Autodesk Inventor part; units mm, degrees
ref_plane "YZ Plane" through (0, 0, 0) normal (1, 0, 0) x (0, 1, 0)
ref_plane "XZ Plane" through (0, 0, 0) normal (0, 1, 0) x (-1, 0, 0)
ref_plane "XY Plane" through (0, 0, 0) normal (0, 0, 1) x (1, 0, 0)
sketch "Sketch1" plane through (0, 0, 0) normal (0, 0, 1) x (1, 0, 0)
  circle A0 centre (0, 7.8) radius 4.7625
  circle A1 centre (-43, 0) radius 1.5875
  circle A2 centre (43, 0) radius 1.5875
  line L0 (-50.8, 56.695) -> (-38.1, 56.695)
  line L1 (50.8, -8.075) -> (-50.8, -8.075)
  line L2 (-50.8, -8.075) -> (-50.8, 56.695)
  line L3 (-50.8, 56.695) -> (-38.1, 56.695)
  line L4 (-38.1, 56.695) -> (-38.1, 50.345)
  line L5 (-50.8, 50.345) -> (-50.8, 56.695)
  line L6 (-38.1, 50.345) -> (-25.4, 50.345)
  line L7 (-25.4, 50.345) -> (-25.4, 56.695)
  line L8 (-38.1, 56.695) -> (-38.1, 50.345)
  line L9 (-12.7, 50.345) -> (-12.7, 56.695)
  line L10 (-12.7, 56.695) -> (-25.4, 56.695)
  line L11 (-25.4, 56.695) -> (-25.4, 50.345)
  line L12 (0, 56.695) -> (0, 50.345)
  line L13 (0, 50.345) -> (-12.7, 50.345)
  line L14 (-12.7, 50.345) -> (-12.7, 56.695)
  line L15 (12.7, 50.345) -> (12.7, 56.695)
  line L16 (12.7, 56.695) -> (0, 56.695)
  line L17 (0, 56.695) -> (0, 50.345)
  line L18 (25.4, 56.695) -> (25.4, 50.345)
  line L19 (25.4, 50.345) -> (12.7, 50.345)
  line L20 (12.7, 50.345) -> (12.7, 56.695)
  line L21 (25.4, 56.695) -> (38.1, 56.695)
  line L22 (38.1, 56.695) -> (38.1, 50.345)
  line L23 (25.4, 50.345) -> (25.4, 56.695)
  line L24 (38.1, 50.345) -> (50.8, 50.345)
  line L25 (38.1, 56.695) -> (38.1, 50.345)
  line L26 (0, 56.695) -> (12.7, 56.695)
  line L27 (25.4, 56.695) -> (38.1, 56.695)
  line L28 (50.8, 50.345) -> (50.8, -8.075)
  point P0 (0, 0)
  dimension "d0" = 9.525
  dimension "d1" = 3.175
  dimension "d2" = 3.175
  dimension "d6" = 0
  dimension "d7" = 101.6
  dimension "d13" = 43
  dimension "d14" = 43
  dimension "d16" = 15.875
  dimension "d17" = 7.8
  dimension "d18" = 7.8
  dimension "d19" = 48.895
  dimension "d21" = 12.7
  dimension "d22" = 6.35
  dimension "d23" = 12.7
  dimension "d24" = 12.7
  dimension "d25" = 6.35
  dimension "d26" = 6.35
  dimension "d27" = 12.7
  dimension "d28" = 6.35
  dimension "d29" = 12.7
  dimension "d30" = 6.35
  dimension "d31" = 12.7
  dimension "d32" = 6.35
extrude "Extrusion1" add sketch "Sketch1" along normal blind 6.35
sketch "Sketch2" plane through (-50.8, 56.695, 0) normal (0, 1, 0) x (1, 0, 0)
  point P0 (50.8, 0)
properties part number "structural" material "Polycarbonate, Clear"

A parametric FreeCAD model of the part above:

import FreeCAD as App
import Part
import Sketcher
from FreeCAD import Vector
Q = App.Units.Quantity


def add_polygon(sketch, points):
    """Adds a closed chain of lines whose ends are joined by coincident constraints."""
    first, n = sketch.GeometryCount, len(points)
    for a, b in zip(points, points[1:] + points[:1]):
        sketch.addGeometry(Part.LineSegment(App.Vector(*a, 0), App.Vector(*b, 0)), False)
    for i in range(n):
        sketch.addConstraint(Sketcher.Constraint("Coincident", first + i, 2, first + (i + 1) % n, 1))

doc = App.newDocument("Part")
body = doc.addObject("PartDesign::Body", "Body")

sketch1 = doc.addObject("Sketcher::SketchObject", "Sketch")
body.addObject(sketch1)
sketch1.AttachmentSupport = (doc.XY_Plane, [""])
sketch1.MapMode = "FlatFace"
add_polygon(sketch1, [(-38.1, 56.7), (-50.8, 56.7), (-50.8, -8.1), (50.8, -8.1), (50.8, 50.3), (38.1, 50.3), (38.1, 56.7), (25.4, 56.7), (25.4, 50.3), (12.7, 50.3), (12.7, 56.7), (0, 56.7), (0, 50.3), (-12.7, 50.3), (-12.7, 56.7), (-25.4, 56.7), (-25.4, 50.3), (-38.1, 50.3)])
sketch1.addGeometry(Part.Circle(Vector(-43, 0, 0), Vector(0, 0, 1), 1.6), False)
sketch1.addGeometry(Part.Circle(Vector(0, 7.8, 0), Vector(0, 0, 1), 4.8), False)
sketch1.addGeometry(Part.Circle(Vector(43, 0, 0), Vector(0, 0, 1), 1.6), False)
sketch1.addConstraint(Sketcher.Constraint("Horizontal", 0))
sketch1.addConstraint(Sketcher.Constraint("Vertical", 1))
sketch1.addConstraint(Sketcher.Constraint("Horizontal", 2))
sketch1.addConstraint(Sketcher.Constraint("Vertical", 3))
sketch1.addConstraint(Sketcher.Constraint("Horizontal", 4))
sketch1.addConstraint(Sketcher.Constraint("Vertical", 5))
sketch1.addConstraint(Sketcher.Constraint("Horizontal", 6))
sketch1.addConstraint(Sketcher.Constraint("Vertical", 7))
sketch1.addConstraint(Sketcher.Constraint("Horizontal", 8))
sketch1.addConstraint(Sketcher.Constraint("Vertical", 9))
sketch1.addConstraint(Sketcher.Constraint("Horizontal", 10))
sketch1.addConstraint(Sketcher.Constraint("Vertical", 11))
sketch1.addConstraint(Sketcher.Constraint("Horizontal", 12))
sketch1.addConstraint(Sketcher.Constraint("Vertical", 13))
sketch1.addConstraint(Sketcher.Constraint("Horizontal", 14))
sketch1.addConstraint(Sketcher.Constraint("Vertical", 15))
sketch1.addConstraint(Sketcher.Constraint("Horizontal", 16))
sketch1.addConstraint(Sketcher.Constraint("Vertical", 17))
sketch1.addConstraint(Sketcher.Constraint("Equal", 18, 20))
sketch1.addConstraint(Sketcher.Constraint("Symmetric", 18, 3, 20, 3, -1, 1))
sketch1.addConstraint(Sketcher.Constraint("Symmetric", 8, 2, 12, 2, -2))
sketch1.addConstraint(Sketcher.Constraint("Symmetric", 6, 2, 14, 2, -2))
sketch1.addConstraint(Sketcher.Constraint("Symmetric", 4, 2, 16, 2, -2))
sketch1.addConstraint(Sketcher.Constraint("PointOnObject", 18, 3, -1))
sketch1.addConstraint(Sketcher.Constraint("PointOnObject", 19, 3, -2))
sketch1.addConstraint(Sketcher.Constraint("PointOnObject", 10, 2, -2))
sketch1.addConstraint(Sketcher.Constraint("Horizontal", 0, 2, 5, 2))
sketch1.addConstraint(Sketcher.Constraint("Horizontal", 4, 2, 7, 2))
sketch1.addConstraint(Sketcher.Constraint("Horizontal", 6, 2, 9, 2))
sketch1.addConstraint(Sketcher.Constraint("Equal", 0, 4))
sketch1.addConstraint(Sketcher.Constraint("Equal", 4, 6))
sketch1.addConstraint(Sketcher.Constraint("Equal", 6, 8))
sketch1.addConstraint(Sketcher.Constraint("Equal", 8, 10))
sketch1.addConstraint(Sketcher.Constraint("DistanceX", 2, 1, 2, 2, Q("4 in")))
sketch1.addConstraint(Sketcher.Constraint("Diameter", 18, Q("0.125 in")))
sketch1.addConstraint(Sketcher.Constraint("Diameter", 19, Q("0.375 in")))
sketch1.addConstraint(Sketcher.Constraint("DistanceY", 5, 1, 5, 2, Q("0.25 in")))
sketch1.addConstraint(Sketcher.Constraint("DistanceY", 3, 1, 3, 2, Q("2.3 in")))
sketch1.addConstraint(Sketcher.Constraint("DistanceY", 19, 3, 0, 2, Q("1.925 in")))
sketch1.addConstraint(Sketcher.Constraint("DistanceX", 18, 3, -1, 1, Q("43 mm")))
sketch1.addConstraint(Sketcher.Constraint("DistanceY", -1, 1, 19, 3, Q("7.8 mm")))
pad1 = doc.addObject("PartDesign::Pad", "Pad")
body.addObject(pad1)
pad1.Profile = sketch1
pad1.Length = Q("0.25 in")

doc.recompute()
